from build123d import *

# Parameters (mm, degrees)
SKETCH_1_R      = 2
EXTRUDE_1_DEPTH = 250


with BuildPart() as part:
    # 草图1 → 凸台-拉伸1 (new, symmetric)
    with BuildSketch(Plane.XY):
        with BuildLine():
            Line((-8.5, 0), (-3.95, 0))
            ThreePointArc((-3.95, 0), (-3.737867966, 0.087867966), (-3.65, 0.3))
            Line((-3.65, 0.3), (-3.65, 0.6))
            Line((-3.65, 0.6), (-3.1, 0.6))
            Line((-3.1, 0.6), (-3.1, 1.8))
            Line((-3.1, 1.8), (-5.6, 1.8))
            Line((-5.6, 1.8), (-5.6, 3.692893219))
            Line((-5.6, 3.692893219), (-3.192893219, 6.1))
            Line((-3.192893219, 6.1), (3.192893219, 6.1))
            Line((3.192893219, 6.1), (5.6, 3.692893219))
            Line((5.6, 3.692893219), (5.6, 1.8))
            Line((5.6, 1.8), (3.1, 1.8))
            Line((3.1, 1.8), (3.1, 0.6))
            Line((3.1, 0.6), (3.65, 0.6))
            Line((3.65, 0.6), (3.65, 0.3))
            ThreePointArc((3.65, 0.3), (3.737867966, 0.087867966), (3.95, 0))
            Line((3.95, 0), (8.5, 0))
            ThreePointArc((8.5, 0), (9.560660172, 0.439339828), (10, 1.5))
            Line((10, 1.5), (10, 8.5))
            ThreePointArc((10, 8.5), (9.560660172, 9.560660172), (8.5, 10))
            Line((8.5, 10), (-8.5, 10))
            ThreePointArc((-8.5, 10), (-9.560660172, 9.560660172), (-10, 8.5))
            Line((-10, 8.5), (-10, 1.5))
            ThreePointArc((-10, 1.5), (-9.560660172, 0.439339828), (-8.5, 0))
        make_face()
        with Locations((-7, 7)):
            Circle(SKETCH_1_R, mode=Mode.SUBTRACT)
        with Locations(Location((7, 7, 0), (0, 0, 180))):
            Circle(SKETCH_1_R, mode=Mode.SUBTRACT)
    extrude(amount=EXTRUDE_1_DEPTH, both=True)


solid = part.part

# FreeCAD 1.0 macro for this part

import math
import FreeCAD as App
import Part
import Sketcher
from FreeCAD import Vector
Q = App.Units.Quantity

doc = App.newDocument("Part")
body = doc.addObject("PartDesign::Body", "Body")

# Sketch on XY plane
sketch1 = body.newObject("Sketcher::SketchObject", "Sketch")
sketch1.AttachmentSupport = (doc.getObject("XY_Plane"), [""])
sketch1.MapMode = "FlatFace"
sketch1.addGeometry([
    Part.LineSegment(Vector(-8.5, 0, 0), Vector(-3.95, 0, 0)),  # 0
    Part.ArcOfCircle(Part.Circle(Vector(-3.95, 0.3, 0), Vector(0, 0, 1), 0.3), math.radians(-90), math.radians(0)),  # 1
    Part.LineSegment(Vector(-3.65, 0.3, 0), Vector(-3.65, 0.6, 0)),  # 2
    Part.LineSegment(Vector(-3.65, 0.6, 0), Vector(-3.1, 0.6, 0)),  # 3
    Part.LineSegment(Vector(-3.1, 0.6, 0), Vector(-3.1, 1.8, 0)),  # 4
    Part.LineSegment(Vector(-3.1, 1.8, 0), Vector(-5.6, 1.8, 0)),  # 5
    Part.LineSegment(Vector(-5.6, 1.8, 0), Vector(-5.6, 3.692893, 0)),  # 6
    Part.LineSegment(Vector(-5.6, 3.692893, 0), Vector(-3.192893, 6.1, 0)),  # 7
    Part.LineSegment(Vector(-3.192893, 6.1, 0), Vector(3.192893, 6.1, 0)),  # 8
    Part.LineSegment(Vector(3.192893, 6.1, 0), Vector(5.6, 3.692893, 0)),  # 9
    Part.LineSegment(Vector(5.6, 3.692893, 0), Vector(5.6, 1.8, 0)),  # 10
    Part.LineSegment(Vector(5.6, 1.8, 0), Vector(3.1, 1.8, 0)),  # 11
    Part.LineSegment(Vector(3.1, 1.8, 0), Vector(3.1, 0.6, 0)),  # 12
    Part.LineSegment(Vector(3.1, 0.6, 0), Vector(3.65, 0.6, 0)),  # 13
    Part.LineSegment(Vector(3.65, 0.6, 0), Vector(3.65, 0.3, 0)),  # 14
    Part.ArcOfCircle(Part.Circle(Vector(3.95, 0.3, 0), Vector(0, 0, 1), 0.3), math.radians(-180), math.radians(-90)),  # 15
    Part.LineSegment(Vector(3.95, 0, 0), Vector(8.5, 0, 0)),  # 16
    Part.ArcOfCircle(Part.Circle(Vector(8.5, 1.5, 0), Vector(0, 0, 1), 1.5), math.radians(-90), math.radians(0)),  # 17
    Part.LineSegment(Vector(10, 1.5, 0), Vector(10, 8.5, 0)),  # 18
    Part.ArcOfCircle(Part.Circle(Vector(8.5, 8.5, 0), Vector(0, 0, 1), 1.5), math.radians(0), math.radians(90)),  # 19
    Part.LineSegment(Vector(8.5, 10, 0), Vector(-8.5, 10, 0)),  # 20
    Part.ArcOfCircle(Part.Circle(Vector(-8.5, 8.5, 0), Vector(0, 0, 1), 1.5), math.radians(90), math.radians(180)),  # 21
    Part.LineSegment(Vector(-10, 8.5, 0), Vector(-10, 1.5, 0)),  # 22
    Part.ArcOfCircle(Part.Circle(Vector(-8.5, 1.5, 0), Vector(0, 0, 1), 1.5), math.radians(180), math.radians(270)),  # 23
    Part.Circle(Vector(-7, 7, 0), Vector(0, 0, 1), 2),  # 24
    Part.Circle(Vector(7, 7, 0), Vector(0, 0, 1), 2),  # 25
], False)
sketch1.addConstraint([
    Sketcher.Constraint("Tangent", 0, 2, 1, 1),
    Sketcher.Constraint("Tangent", 1, 2, 2, 1),
    Sketcher.Constraint("Coincident", 2, 2, 3, 1),
    Sketcher.Constraint("Coincident", 3, 2, 4, 1),
    Sketcher.Constraint("Coincident", 4, 2, 5, 1),
    Sketcher.Constraint("Coincident", 5, 2, 6, 1),
    Sketcher.Constraint("Coincident", 6, 2, 7, 1),
    Sketcher.Constraint("Coincident", 7, 2, 8, 1),
    Sketcher.Constraint("Coincident", 8, 2, 9, 1),
    Sketcher.Constraint("Coincident", 9, 2, 10, 1),
    Sketcher.Constraint("Coincident", 10, 2, 11, 1),
    Sketcher.Constraint("Coincident", 11, 2, 12, 1),
    Sketcher.Constraint("Coincident", 12, 2, 13, 1),
    Sketcher.Constraint("Coincident", 13, 2, 14, 1),
    Sketcher.Constraint("Tangent", 14, 2, 15, 1),
    Sketcher.Constraint("Tangent", 15, 2, 16, 1),
    Sketcher.Constraint("Tangent", 16, 2, 17, 1),
    Sketcher.Constraint("Tangent", 17, 2, 18, 1),
    Sketcher.Constraint("Tangent", 18, 2, 19, 1),
    Sketcher.Constraint("Tangent", 19, 2, 20, 1),
    Sketcher.Constraint("Tangent", 20, 2, 21, 1),
    Sketcher.Constraint("Tangent", 21, 2, 22, 1),
    Sketcher.Constraint("Tangent", 22, 2, 23, 1),
    Sketcher.Constraint("Tangent", 23, 2, 0, 1),
    Sketcher.Constraint("Horizontal", 0),
    Sketcher.Constraint("Vertical", 2),
    Sketcher.Constraint("Horizontal", 3),
    Sketcher.Constraint("Vertical", 4),
    Sketcher.Constraint("Horizontal", 5),
    Sketcher.Constraint("Vertical", 6),
    Sketcher.Constraint("Horizontal", 8),
    Sketcher.Constraint("Vertical", 10),
    Sketcher.Constraint("Horizontal", 11),
    Sketcher.Constraint("Vertical", 12),
    Sketcher.Constraint("Horizontal", 13),
    Sketcher.Constraint("Vertical", 14),
    Sketcher.Constraint("Horizontal", 16),
    Sketcher.Constraint("Vertical", 18),
    Sketcher.Constraint("Horizontal", 20),
    Sketcher.Constraint("Vertical", 22),
    Sketcher.Constraint("Equal", 1, 15),
    Sketcher.Constraint("Equal", 17, 19),
    Sketcher.Constraint("Equal", 19, 21),
    Sketcher.Constraint("Equal", 21, 23),
    Sketcher.Constraint("Equal", 24, 25),
    Sketcher.Constraint("Symmetric", 0, 2, 15, 2, -1, 1),
    Sketcher.Constraint("Symmetric", 17, 3, 23, 3, -2),
    Sketcher.Constraint("Symmetric", 24, 3, 25, 3, -2),
    Sketcher.Constraint("Symmetric", 6, 2, 9, 2, -2),
    Sketcher.Constraint("Symmetric", 4, 2, 11, 2, -2),
    Sketcher.Constraint("Perpendicular", 7, 9),
    Sketcher.Constraint("Horizontal", 3, 2, 12, 2),
    Sketcher.Constraint("Equal", 7, 9),
    Sketcher.Constraint("Diameter", 24, Q("4 mm")),
    Sketcher.Constraint("Radius", 1, Q("0.3 mm")),
    Sketcher.Constraint("Radius", 17, Q("1.5 mm")),
    Sketcher.Constraint("DistanceX", 20, 2, 20, 1, Q("17 mm")),
    Sketcher.Constraint("DistanceY", 18, 1, 18, 2, Q("7 mm")),
    Sketcher.Constraint("DistanceX", 5, 2, 5, 1, Q("2.5 mm")),
    Sketcher.Constraint("DistanceY", 2, 1, 2, 2, Q("0.3 mm")),
    Sketcher.Constraint("DistanceY", 4, 1, 4, 2, Q("1.2 mm")),
    Sketcher.Constraint("DistanceX", 24, 3, -1, 1, Q("7 mm")),
    Sketcher.Constraint("DistanceY", -1, 1, 24, 3, Q("7 mm")),
    Sketcher.Constraint("DistanceX", 0, 1, 0, 2, Q("4.55 mm")),
    Sketcher.Constraint("DistanceX", 3, 1, 3, 2, Q("0.55 mm")),
    Sketcher.Constraint("DistanceY", -1, 1, 7, 2, Q("6.1 mm")),
    Sketcher.Constraint("DistanceX", 8, 1, 8, 2, Q("6.385786 mm")),
])
pad1 = body.newObject("PartDesign::Pad", "Pad")
pad1.Profile = sketch1
pad1.Length = 500
pad1.Midplane = True

doc.recompute()
